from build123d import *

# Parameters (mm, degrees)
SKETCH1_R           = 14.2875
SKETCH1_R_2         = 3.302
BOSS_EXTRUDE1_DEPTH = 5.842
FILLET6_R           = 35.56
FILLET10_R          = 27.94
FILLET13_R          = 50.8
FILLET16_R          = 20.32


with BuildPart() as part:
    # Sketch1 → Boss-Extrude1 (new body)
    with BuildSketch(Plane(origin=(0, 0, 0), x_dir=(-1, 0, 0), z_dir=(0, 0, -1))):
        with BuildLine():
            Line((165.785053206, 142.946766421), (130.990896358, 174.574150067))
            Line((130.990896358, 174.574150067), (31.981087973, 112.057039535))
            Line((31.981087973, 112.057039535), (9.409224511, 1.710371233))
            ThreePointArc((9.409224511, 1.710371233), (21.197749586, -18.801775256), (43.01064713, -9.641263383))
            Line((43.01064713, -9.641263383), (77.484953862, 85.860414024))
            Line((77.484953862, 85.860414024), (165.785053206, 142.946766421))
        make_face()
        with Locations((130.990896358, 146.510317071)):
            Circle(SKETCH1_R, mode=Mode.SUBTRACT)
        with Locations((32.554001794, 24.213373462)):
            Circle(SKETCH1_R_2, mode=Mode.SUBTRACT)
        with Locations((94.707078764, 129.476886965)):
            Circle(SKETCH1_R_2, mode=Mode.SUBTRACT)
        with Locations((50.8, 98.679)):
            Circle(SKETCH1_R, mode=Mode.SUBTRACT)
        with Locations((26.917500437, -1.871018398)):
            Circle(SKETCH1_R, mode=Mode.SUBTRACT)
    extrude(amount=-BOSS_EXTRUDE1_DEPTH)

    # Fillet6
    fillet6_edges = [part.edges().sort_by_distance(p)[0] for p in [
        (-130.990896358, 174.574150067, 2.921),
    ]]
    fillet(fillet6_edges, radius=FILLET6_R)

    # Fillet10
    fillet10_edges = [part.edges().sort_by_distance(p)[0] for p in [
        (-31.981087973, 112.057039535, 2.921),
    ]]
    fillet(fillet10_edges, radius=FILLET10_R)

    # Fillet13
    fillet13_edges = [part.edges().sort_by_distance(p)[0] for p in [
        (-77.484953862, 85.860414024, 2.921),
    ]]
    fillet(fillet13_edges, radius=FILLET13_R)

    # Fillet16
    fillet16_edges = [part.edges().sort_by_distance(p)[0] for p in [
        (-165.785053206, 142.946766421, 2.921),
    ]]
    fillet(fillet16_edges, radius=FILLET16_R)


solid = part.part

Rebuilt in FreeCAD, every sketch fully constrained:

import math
import FreeCAD as App
import Part
import Sketcher
from FreeCAD import Vector
Q = App.Units.Quantity


def edges_at(feature, points):
    """Names of the edges that pass closest to the given points."""
    edges = feature.Shape.Edges
    near = lambda p: min(range(len(edges)), key=lambda i: edges[i].distToShape(Part.Vertex(*p))[0])
    return sorted({f"Edge{near(p) + 1}" for p in points})

doc = App.newDocument("Part")
params = doc.addObject("Spreadsheet::Sheet", "Params")
for row, (alias, value) in enumerate([
    ("sketch1_diameter", "0.26 in"),
    ("sketch1_diameter2", "1.125 in"),
    ("pad1_length", "0.23 in"),
    ("fillet_radius", "1.4 in"),
    ("fillet2_radius", "1.1 in"),
    ("fillet3_radius", "2 in"),
    ("fillet4_radius", "0.8 in"),
], start=1):
    params.set(f"A{row}", alias)
    params.set(f"B{row}", "=" + value)
    params.setAlias(f"B{row}", alias)

body = doc.addObject("PartDesign::Body", "Body")

# Sketch on XY plane
sketch1 = body.newObject("Sketcher::SketchObject", "Sketch")
sketch1.AttachmentSupport = (doc.getObject("XY_Plane"), [""])
sketch1.MapMode = "FlatFace"
sketch1.addGeometry([
    Part.LineSegment(Vector(-165.8, 142.9, 0), Vector(-131, 174.6, 0)),  # 0
    Part.LineSegment(Vector(-131, 174.6, 0), Vector(-32, 112.1, 0)),  # 1
    Part.LineSegment(Vector(-32, 112.1, 0), Vector(-9.4, 1.7, 0)),  # 2
    Part.ArcOfCircle(Part.Circle(Vector(-26.9, -1.9, 0), Vector(0, 0, 1), 17.9), math.radians(-154), math.radians(12)),  # 3
    Part.LineSegment(Vector(-43, -9.6, 0), Vector(-77.5, 85.9, 0)),  # 4
    Part.LineSegment(Vector(-77.5, 85.9, 0), Vector(-165.8, 142.9, 0)),  # 5
    Part.Circle(Vector(-26.9, -1.9, 0), Vector(0, 0, 1), 14.3),  # 6
    Part.Circle(Vector(-32.6, 24.2, 0), Vector(0, 0, 1), 3.3),  # 7
    Part.Circle(Vector(-50.8, 98.7, 0), Vector(0, 0, 1), 14.3),  # 8
    Part.Circle(Vector(-94.7, 129.5, 0), Vector(0, 0, 1), 3.3),  # 9
    Part.Circle(Vector(-131, 146.5, 0), Vector(0, 0, 1), 14.3),  # 10
], False)
sketch1.addConstraint([
    Sketcher.Constraint("Coincident", 0, 2, 1, 1),
    Sketcher.Constraint("Coincident", 1, 2, 2, 1),
    Sketcher.Constraint("Tangent", 2, 2, 3, 2),
    Sketcher.Constraint("Coincident", 3, 1, 4, 1),
    Sketcher.Constraint("Coincident", 4, 2, 5, 1),
    Sketcher.Constraint("Coincident", 5, 2, 0, 1),
    Sketcher.Constraint("Coincident", 6, 3, 3, 3),
    Sketcher.Constraint("Equal", 6, 8),
    Sketcher.Constraint("Equal", 7, 9),
    Sketcher.Constraint("Equal", 8, 10),
    Sketcher.Constraint("Vertical", 10, 3, 0, 2),
    Sketcher.Constraint("Diameter", 7, Q("0.26 in")),
    Sketcher.Constraint("Diameter", 6, Q("1.125 in")),
    Sketcher.Constraint("DistanceX", 8, 3, -1, 1, Q("2 in")),
    Sketcher.Constraint("DistanceY", -1, 1, 8, 3, Q("3.885 in")),
    Sketcher.Constraint("Radius", 3, Q("17.870816 mm")),
    Sketcher.Constraint("DistanceX", 3, 3, -1, 1, Q("26.9175 mm")),
    Sketcher.Constraint("DistanceX", 7, 3, -1, 1, Q("32.554002 mm")),
    Sketcher.Constraint("DistanceX", 5, 2, 4, 2, Q("88.300099 mm")),
    Sketcher.Constraint("Distance", 0, Q("47.020472 mm")),
    Sketcher.Constraint("Distance", 5, Q("105.14637 mm")),
    Sketcher.Constraint("DistanceY", 3, 3, -1, 1, Q("1.871018 mm")),
    Sketcher.Constraint("DistanceX", 9, 3, -1, 1, Q("94.707079 mm")),
    Sketcher.Constraint("DistanceY", -1, 1, 0, 2, Q("174.57415 mm")),
    Sketcher.Constraint("DistanceY", -1, 1, 1, 2, Q("112.05704 mm")),
    Sketcher.Constraint("DistanceY", -1, 1, 2, 2, Q("1.710371 mm")),
    Sketcher.Constraint("DistanceY", 3, 3, 7, 3, Q("26.084392 mm")),
    Sketcher.Constraint("DistanceY", 9, 3, 10, 3, Q("17.03343 mm")),
    Sketcher.Constraint("DistanceX", 10, 3, 1, 2, Q("99.009808 mm")),
    Sketcher.Constraint("DistanceY", 7, 3, 4, 2, Q("61.647041 mm")),
    Sketcher.Constraint("DistanceY", 5, 2, 10, 3, Q("3.563551 mm")),
    Sketcher.Constraint("Distance", 4, Q("101.533483 mm")),
])
sketch1.setExpression("Constraints[11]", "Params.sketch1_diameter")
sketch1.setExpression("Constraints[12]", "Params.sketch1_diameter2")
pad1 = body.newObject("PartDesign::Pad", "Pad")
pad1.Profile = sketch1
pad1.setExpression("Length", "Params.pad1_length")
doc.recompute()

fillet = body.newObject("PartDesign::Fillet", "Fillet")
fillet.Base = (pad1, edges_at(pad1, [(-130.991, 174.574, 2.921)]))
fillet.setExpression("Radius", "Params.fillet_radius")
doc.recompute()

fillet2 = body.newObject("PartDesign::Fillet", "Fillet001")
fillet2.Base = (fillet, edges_at(fillet, [(-31.981, 112.057, 2.921)]))
fillet2.setExpression("Radius", "Params.fillet2_radius")
doc.recompute()

fillet3 = body.newObject("PartDesign::Fillet", "Fillet002")
fillet3.Base = (fillet2, edges_at(fillet2, [(-77.485, 85.86, 2.921)]))
fillet3.setExpression("Radius", "Params.fillet3_radius")
doc.recompute()

fillet4 = body.newObject("PartDesign::Fillet", "Fillet003")
fillet4.Base = (fillet3, edges_at(fillet3, [(-165.785, 142.947, 2.921)]))
fillet4.setExpression("Radius", "Params.fillet4_radius")

doc.recompute()
